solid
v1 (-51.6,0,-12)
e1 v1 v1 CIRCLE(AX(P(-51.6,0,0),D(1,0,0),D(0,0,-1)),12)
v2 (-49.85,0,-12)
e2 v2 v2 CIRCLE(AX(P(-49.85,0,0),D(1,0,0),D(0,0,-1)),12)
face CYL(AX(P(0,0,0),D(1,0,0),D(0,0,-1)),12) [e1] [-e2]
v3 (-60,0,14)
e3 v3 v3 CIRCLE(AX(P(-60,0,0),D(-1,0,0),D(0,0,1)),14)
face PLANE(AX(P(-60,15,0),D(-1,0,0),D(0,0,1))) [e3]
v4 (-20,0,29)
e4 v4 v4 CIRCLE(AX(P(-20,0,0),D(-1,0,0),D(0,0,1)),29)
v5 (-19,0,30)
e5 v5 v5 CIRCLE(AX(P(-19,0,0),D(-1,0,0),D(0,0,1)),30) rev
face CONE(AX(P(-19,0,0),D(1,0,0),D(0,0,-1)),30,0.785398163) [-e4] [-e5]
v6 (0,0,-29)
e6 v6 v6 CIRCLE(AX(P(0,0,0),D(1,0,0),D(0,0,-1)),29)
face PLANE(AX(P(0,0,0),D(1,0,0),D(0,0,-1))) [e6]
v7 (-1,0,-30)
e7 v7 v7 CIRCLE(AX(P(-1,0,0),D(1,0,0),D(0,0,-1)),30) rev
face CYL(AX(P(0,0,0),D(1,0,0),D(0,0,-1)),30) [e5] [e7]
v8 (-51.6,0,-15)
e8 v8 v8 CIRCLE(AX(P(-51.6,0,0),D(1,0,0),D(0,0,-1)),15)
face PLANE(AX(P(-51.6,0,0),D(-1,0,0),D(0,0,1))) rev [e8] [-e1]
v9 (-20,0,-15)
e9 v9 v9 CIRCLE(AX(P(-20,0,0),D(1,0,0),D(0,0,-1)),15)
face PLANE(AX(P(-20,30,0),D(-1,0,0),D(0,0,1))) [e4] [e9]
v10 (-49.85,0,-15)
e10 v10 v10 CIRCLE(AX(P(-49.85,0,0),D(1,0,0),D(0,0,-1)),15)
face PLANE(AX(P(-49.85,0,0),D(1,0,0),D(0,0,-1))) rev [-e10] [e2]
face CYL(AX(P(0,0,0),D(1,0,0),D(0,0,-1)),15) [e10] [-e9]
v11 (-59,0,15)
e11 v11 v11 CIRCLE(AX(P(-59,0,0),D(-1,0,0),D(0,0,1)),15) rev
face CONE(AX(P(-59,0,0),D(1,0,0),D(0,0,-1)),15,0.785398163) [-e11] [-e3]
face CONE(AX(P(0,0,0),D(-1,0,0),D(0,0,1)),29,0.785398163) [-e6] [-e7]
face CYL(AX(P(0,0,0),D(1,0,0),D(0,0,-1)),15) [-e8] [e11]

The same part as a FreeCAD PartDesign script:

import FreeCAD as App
import Part
import Sketcher
Q = App.Units.Quantity


def edges_at(feature, points):
    """Names of the edges that pass closest to the given points."""
    edges = feature.Shape.Edges
    near = lambda p: min(range(len(edges)), key=lambda i: edges[i].distToShape(Part.Vertex(*p))[0])
    return sorted({f"Edge{near(p) + 1}" for p in points})


def add_polygon(sketch, points):
    """Adds a closed chain of lines whose ends are joined by coincident constraints."""
    first, n = sketch.GeometryCount, len(points)
    for a, b in zip(points, points[1:] + points[:1]):
        sketch.addGeometry(Part.LineSegment(App.Vector(*a, 0), App.Vector(*b, 0)), False)
    for i in range(n):
        sketch.addConstraint(Sketcher.Constraint("Coincident", first + i, 2, first + (i + 1) % n, 1))

doc = App.newDocument("Part")
body = doc.addObject("PartDesign::Body", "Body")

# Sketch on XY plane
sketch1 = doc.addObject("Sketcher::SketchObject", "Sketch")
body.addObject(sketch1)
sketch1.AttachmentSupport = (doc.XY_Plane, [""])
sketch1.MapMode = "FlatFace"
add_polygon(sketch1, [(0, 0), (0, 30), (-20, 30), (-20, 15), (-60, 15), (-60, 0)])  # lines 0-5
sketch1.addConstraint(Sketcher.Constraint("Vertical", 0))
sketch1.addConstraint(Sketcher.Constraint("Horizontal", 1))
sketch1.addConstraint(Sketcher.Constraint("Vertical", 2))
sketch1.addConstraint(Sketcher.Constraint("Horizontal", 3))
sketch1.addConstraint(Sketcher.Constraint("Vertical", 4))
sketch1.addConstraint(Sketcher.Constraint("Horizontal", 5))
sketch1.addConstraint(Sketcher.Constraint("Coincident", 5, 2, -1, 1))
sketch1.addConstraint(Sketcher.Constraint("Equal", 2, 4))
sketch1.addConstraint(Sketcher.Constraint("DistanceX", 1, 2, 1, 1, Q("20 mm")))
sketch1.addConstraint(Sketcher.Constraint("DistanceX", 3, 2, 3, 1, Q("40 mm")))
sketch1.addConstraint(Sketcher.Constraint("DistanceY", 0, 1, 0, 2, Q("30 mm")))
revolution = doc.addObject("PartDesign::Revolution", "Revolution")
body.addObject(revolution)
revolution.Profile = sketch1
revolution.ReferenceAxis = (sketch1, ["H_Axis"])
revolution.Angle = 360
doc.recompute()

chamfer = doc.addObject("PartDesign::Chamfer", "Chamfer")
body.addObject(chamfer)
chamfer.Base = (revolution, edges_at(revolution, [(-60, 0, 15), (-20, 0, 30), (0, 0, 30)]))
chamfer.Size = 1

# Sketch on XY plane
sketch2 = doc.addObject("Sketcher::SketchObject", "Sketch001")
body.addObject(sketch2)
sketch2.AttachmentSupport = (doc.XY_Plane, [""])
sketch2.MapMode = "FlatFace"
add_polygon(sketch2, [(-51.6, 15), (-51.6, 12), (-49.9, 12), (-49.9, 15)])  # lines 0-3
sketch2.addConstraint(Sketcher.Constraint("Vertical", 0))
sketch2.addConstraint(Sketcher.Constraint("Horizontal", 1))
sketch2.addConstraint(Sketcher.Constraint("Vertical", 2))
sketch2.addConstraint(Sketcher.Constraint("Horizontal", 3))
sketch2.addConstraint(Sketcher.Constraint("DistanceY", 0, 2, 0, 1, Q("3 mm")))
sketch2.addConstraint(Sketcher.Constraint("DistanceY", -1, 1, 0, 2, Q("12 mm")))
sketch2.addConstraint(Sketcher.Constraint("DistanceX", 1, 1, 1, 2, Q("1.75 mm")))
sketch2.addConstraint(Sketcher.Constraint("DistanceX", 0, 2, -1, 1, Q("51.6 mm")))
groove = doc.addObject("PartDesign::Groove", "Groove")
body.addObject(groove)
groove.Profile = sketch2
groove.ReferenceAxis = (sketch2, ["H_Axis"])
groove.Angle = 360

doc.recompute()
